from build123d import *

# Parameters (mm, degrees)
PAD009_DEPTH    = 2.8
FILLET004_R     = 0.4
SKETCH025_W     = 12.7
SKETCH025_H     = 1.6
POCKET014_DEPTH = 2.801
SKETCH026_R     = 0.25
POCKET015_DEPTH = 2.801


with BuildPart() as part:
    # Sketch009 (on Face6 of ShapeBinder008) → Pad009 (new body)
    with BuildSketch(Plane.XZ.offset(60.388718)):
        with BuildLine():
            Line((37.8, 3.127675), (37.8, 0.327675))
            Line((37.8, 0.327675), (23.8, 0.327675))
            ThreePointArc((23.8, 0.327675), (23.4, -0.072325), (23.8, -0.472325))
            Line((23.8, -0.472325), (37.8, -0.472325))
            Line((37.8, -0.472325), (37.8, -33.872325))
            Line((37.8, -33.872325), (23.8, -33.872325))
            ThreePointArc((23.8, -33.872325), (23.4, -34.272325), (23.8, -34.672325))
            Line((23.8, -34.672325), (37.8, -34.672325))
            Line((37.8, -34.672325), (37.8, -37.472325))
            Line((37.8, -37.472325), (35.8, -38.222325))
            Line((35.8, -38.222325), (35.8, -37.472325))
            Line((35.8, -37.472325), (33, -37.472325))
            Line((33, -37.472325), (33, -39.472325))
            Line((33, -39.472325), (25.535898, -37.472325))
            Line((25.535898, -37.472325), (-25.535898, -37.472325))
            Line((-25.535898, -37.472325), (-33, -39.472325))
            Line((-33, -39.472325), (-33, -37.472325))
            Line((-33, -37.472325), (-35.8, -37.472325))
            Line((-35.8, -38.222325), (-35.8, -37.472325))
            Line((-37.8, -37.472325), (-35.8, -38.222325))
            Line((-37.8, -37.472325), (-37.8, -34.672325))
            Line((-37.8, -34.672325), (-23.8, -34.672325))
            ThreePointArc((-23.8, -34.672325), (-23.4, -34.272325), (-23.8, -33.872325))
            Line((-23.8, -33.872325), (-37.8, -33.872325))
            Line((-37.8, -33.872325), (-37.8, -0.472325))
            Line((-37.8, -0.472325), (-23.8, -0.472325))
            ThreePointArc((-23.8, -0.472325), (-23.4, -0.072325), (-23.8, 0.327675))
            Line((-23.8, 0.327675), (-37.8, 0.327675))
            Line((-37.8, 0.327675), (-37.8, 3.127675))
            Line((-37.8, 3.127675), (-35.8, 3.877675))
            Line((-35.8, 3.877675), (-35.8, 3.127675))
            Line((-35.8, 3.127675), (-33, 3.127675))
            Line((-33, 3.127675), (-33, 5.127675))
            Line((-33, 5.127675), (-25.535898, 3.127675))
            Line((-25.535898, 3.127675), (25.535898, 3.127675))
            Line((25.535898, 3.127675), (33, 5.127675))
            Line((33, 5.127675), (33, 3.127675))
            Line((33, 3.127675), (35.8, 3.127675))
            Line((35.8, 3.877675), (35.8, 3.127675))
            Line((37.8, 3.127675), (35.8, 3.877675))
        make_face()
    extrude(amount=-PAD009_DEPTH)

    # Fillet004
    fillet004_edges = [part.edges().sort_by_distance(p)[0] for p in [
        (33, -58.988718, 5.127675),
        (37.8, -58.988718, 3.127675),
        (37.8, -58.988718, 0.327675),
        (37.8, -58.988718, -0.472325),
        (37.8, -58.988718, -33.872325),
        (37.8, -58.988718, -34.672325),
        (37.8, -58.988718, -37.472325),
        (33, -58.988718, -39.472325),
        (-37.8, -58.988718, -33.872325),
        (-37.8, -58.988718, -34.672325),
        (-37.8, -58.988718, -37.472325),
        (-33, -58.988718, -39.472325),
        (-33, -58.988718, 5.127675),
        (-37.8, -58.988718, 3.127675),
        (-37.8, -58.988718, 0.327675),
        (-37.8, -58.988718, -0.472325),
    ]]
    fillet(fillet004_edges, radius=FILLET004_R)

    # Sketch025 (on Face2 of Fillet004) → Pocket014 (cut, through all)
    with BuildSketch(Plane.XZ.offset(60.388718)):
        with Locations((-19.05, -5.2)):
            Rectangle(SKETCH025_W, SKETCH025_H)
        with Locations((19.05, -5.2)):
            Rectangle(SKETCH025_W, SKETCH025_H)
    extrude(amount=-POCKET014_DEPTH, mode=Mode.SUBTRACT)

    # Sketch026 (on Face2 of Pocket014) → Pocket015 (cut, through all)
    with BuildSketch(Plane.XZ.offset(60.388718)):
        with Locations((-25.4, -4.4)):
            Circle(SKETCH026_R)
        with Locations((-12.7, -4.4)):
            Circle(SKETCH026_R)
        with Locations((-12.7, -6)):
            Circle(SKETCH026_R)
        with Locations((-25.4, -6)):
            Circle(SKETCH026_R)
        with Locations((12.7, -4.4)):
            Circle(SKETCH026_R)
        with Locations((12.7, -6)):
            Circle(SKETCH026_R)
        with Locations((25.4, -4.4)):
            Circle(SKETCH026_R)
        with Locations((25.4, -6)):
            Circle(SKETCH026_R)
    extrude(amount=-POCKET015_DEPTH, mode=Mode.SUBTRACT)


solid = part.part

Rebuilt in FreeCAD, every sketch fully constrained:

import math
import FreeCAD as App
import Part
import Sketcher

V = App.Vector
Q = App.Units.Quantity


def edges_at(feature, points):
    """Names of the edges that pass closest to the given points."""
    edges = feature.Shape.Edges
    near = lambda p: min(range(len(edges)), key=lambda i: edges[i].distToShape(Part.Vertex(*p))[0])
    return sorted({f"Edge{near(p) + 1}" for p in points})

doc = App.newDocument("Part")
body = doc.addObject("PartDesign::Body", "Body")

# Sketch on XZ plane
sketch1 = body.newObject("Sketcher::SketchObject", "Sketch")
sketch1.AttachmentSupport = (doc.getObject("XZ_Plane"), [""])
sketch1.MapMode = "FlatFace"
sketch1.AttachmentOffset = App.Placement(V(0, 0, 60.388718), App.Rotation())
sketch1.addGeometry(Part.LineSegment(V(37.8, 0.327675, 0), V(37.8, 3.127675, 0)), False)
sketch1.addGeometry(Part.LineSegment(V(37.8, 3.127675, 0), V(35.8, 3.877675, 0)), False)
sketch1.addGeometry(Part.LineSegment(V(35.8, 3.877675, 0), V(35.8, 3.127675, 0)), False)
sketch1.addGeometry(Part.LineSegment(V(35.8, 3.127675, 0), V(33, 3.127675, 0)), False)
sketch1.addGeometry(Part.LineSegment(V(33, 3.127675, 0), V(33, 5.127675, 0)), False)
sketch1.addGeometry(Part.LineSegment(V(33, 5.127675, 0), V(25.535898, 3.127675, 0)), False)
sketch1.addGeometry(Part.LineSegment(V(25.535898, 3.127675, 0), V(-25.535898, 3.127675, 0)), False)
sketch1.addGeometry(Part.LineSegment(V(-25.535898, 3.127675, 0), V(-33, 5.127675, 0)), False)
sketch1.addGeometry(Part.LineSegment(V(-33, 5.127675, 0), V(-33, 3.127675, 0)), False)
sketch1.addGeometry(Part.LineSegment(V(-33, 3.127675, 0), V(-35.8, 3.127675, 0)), False)
sketch1.addGeometry(Part.LineSegment(V(-35.8, 3.127675, 0), V(-35.8, 3.877675, 0)), False)
sketch1.addGeometry(Part.LineSegment(V(-35.8, 3.877675, 0), V(-37.8, 3.127675, 0)), False)
sketch1.addGeometry(Part.LineSegment(V(-37.8, 3.127675, 0), V(-37.8, 0.327675, 0)), False)
sketch1.addGeometry(Part.LineSegment(V(-37.8, 0.327675, 0), V(-23.8, 0.327675, 0)), False)
sketch1.addGeometry(Part.ArcOfCircle(Part.Circle(V(-23.8, -0.072325, 0), V(0, 0, 1), 0.4), math.radians(-90), math.radians(90)), False)
sketch1.addGeometry(Part.LineSegment(V(-23.8, -0.472325, 0), V(-37.8, -0.472325, 0)), False)
sketch1.addGeometry(Part.LineSegment(V(-37.8, -0.472325, 0), V(-37.8, -33.872325, 0)), False)
sketch1.addGeometry(Part.LineSegment(V(-37.8, -33.872325, 0), V(-23.8, -33.872325, 0)), False)
sketch1.addGeometry(Part.ArcOfCircle(Part.Circle(V(-23.8, -34.272325, 0), V(0, 0, 1), 0.4), math.radians(-90), math.radians(90)), False)
sketch1.addGeometry(Part.LineSegment(V(-23.8, -34.672325, 0), V(-37.8, -34.672325, 0)), False)
sketch1.addGeometry(Part.LineSegment(V(-37.8, -34.672325, 0), V(-37.8, -37.472325, 0)), False)
sketch1.addGeometry(Part.LineSegment(V(-37.8, -37.472325, 0), V(-35.8, -38.222325, 0)), False)
sketch1.addGeometry(Part.LineSegment(V(-35.8, -38.222325, 0), V(-35.8, -37.472325, 0)), False)
sketch1.addGeometry(Part.LineSegment(V(-35.8, -37.472325, 0), V(-33, -37.472325, 0)), False)
sketch1.addGeometry(Part.LineSegment(V(-33, -37.472325, 0), V(-33, -39.472325, 0)), False)
sketch1.addGeometry(Part.LineSegment(V(-33, -39.472325, 0), V(-25.535898, -37.472325, 0)), False)
sketch1.addGeometry(Part.LineSegment(V(-25.535898, -37.472325, 0), V(25.535898, -37.472325, 0)), False)
sketch1.addGeometry(Part.LineSegment(V(25.535898, -37.472325, 0), V(33, -39.472325, 0)), False)
sketch1.addGeometry(Part.LineSegment(V(33, -39.472325, 0), V(33, -37.472325, 0)), False)
sketch1.addGeometry(Part.LineSegment(V(33, -37.472325, 0), V(35.8, -37.472325, 0)), False)
sketch1.addGeometry(Part.LineSegment(V(35.8, -37.472325, 0), V(35.8, -38.222325, 0)), False)
sketch1.addGeometry(Part.LineSegment(V(35.8, -38.222325, 0), V(37.8, -37.472325, 0)), False)
sketch1.addGeometry(Part.LineSegment(V(37.8, -37.472325, 0), V(37.8, -34.672325, 0)), False)
sketch1.addGeometry(Part.LineSegment(V(37.8, -34.672325, 0), V(23.8, -34.672325, 0)), False)
sketch1.addGeometry(Part.ArcOfCircle(Part.Circle(V(23.8, -34.272325, 0), V(0, 0, 1), 0.4), math.radians(90), math.radians(270)), False)
sketch1.addGeometry(Part.LineSegment(V(23.8, -33.872325, 0), V(37.8, -33.872325, 0)), False)
sketch1.addGeometry(Part.LineSegment(V(37.8, -33.872325, 0), V(37.8, -0.472325, 0)), False)
sketch1.addGeometry(Part.LineSegment(V(37.8, -0.472325, 0), V(23.8, -0.472325, 0)), False)
sketch1.addGeometry(Part.ArcOfCircle(Part.Circle(V(23.8, -0.072325, 0), V(0, 0, 1), 0.4), math.radians(90), math.radians(270)), False)
sketch1.addGeometry(Part.LineSegment(V(23.8, 0.327675, 0), V(37.8, 0.327675, 0)), False)
sketch1.addConstraint(Sketcher.Constraint("Coincident", 0, 2, 1, 1))
sketch1.addConstraint(Sketcher.Constraint("Coincident", 1, 2, 2, 1))
sketch1.addConstraint(Sketcher.Constraint("Coincident", 2, 2, 3, 1))
sketch1.addConstraint(Sketcher.Constraint("Coincident", 3, 2, 4, 1))
sketch1.addConstraint(Sketcher.Constraint("Coincident", 4, 2, 5, 1))
sketch1.addConstraint(Sketcher.Constraint("Coincident", 5, 2, 6, 1))
sketch1.addConstraint(Sketcher.Constraint("Coincident", 6, 2, 7, 1))
sketch1.addConstraint(Sketcher.Constraint("Coincident", 7, 2, 8, 1))
sketch1.addConstraint(Sketcher.Constraint("Coincident", 8, 2, 9, 1))
sketch1.addConstraint(Sketcher.Constraint("Coincident", 9, 2, 10, 1))
sketch1.addConstraint(Sketcher.Constraint("Coincident", 10, 2, 11, 1))
sketch1.addConstraint(Sketcher.Constraint("Coincident", 11, 2, 12, 1))
sketch1.addConstraint(Sketcher.Constraint("Coincident", 12, 2, 13, 1))
sketch1.addConstraint(Sketcher.Constraint("Tangent", 13, 2, 14, 2))
sketch1.addConstraint(Sketcher.Constraint("Tangent", 14, 1, 15, 1))
sketch1.addConstraint(Sketcher.Constraint("Coincident", 15, 2, 16, 1))
sketch1.addConstraint(Sketcher.Constraint("Coincident", 16, 2, 17, 1))
sketch1.addConstraint(Sketcher.Constraint("Tangent", 17, 2, 18, 2))
sketch1.addConstraint(Sketcher.Constraint("Tangent", 18, 1, 19, 1))
sketch1.addConstraint(Sketcher.Constraint("Coincident", 19, 2, 20, 1))
sketch1.addConstraint(Sketcher.Constraint("Coincident", 20, 2, 21, 1))
sketch1.addConstraint(Sketcher.Constraint("Coincident", 21, 2, 22, 1))
sketch1.addConstraint(Sketcher.Constraint("Coincident", 22, 2, 23, 1))
sketch1.addConstraint(Sketcher.Constraint("Coincident", 23, 2, 24, 1))
sketch1.addConstraint(Sketcher.Constraint("Coincident", 24, 2, 25, 1))
sketch1.addConstraint(Sketcher.Constraint("Coincident", 25, 2, 26, 1))
sketch1.addConstraint(Sketcher.Constraint("Coincident", 26, 2, 27, 1))
sketch1.addConstraint(Sketcher.Constraint("Coincident", 27, 2, 28, 1))
sketch1.addConstraint(Sketcher.Constraint("Coincident", 28, 2, 29, 1))
sketch1.addConstraint(Sketcher.Constraint("Coincident", 29, 2, 30, 1))
sketch1.addConstraint(Sketcher.Constraint("Coincident", 30, 2, 31, 1))
sketch1.addConstraint(Sketcher.Constraint("Coincident", 31, 2, 32, 1))
sketch1.addConstraint(Sketcher.Constraint("Coincident", 32, 2, 33, 1))
sketch1.addConstraint(Sketcher.Constraint("Tangent", 33, 2, 34, 2))
sketch1.addConstraint(Sketcher.Constraint("Tangent", 34, 1, 35, 1))
sketch1.addConstraint(Sketcher.Constraint("Coincident", 35, 2, 36, 1))
sketch1.addConstraint(Sketcher.Constraint("Coincident", 36, 2, 37, 1))
sketch1.addConstraint(Sketcher.Constraint("Tangent", 37, 2, 38, 2))
sketch1.addConstraint(Sketcher.Constraint("Tangent", 38, 1, 39, 1))
sketch1.addConstraint(Sketcher.Constraint("Coincident", 39, 2, 0, 1))
sketch1.addConstraint(Sketcher.Constraint("Vertical", 0))
sketch1.addConstraint(Sketcher.Constraint("Vertical", 2))
sketch1.addConstraint(Sketcher.Constraint("Horizontal", 3))
sketch1.addConstraint(Sketcher.Constraint("Vertical", 4))
sketch1.addConstraint(Sketcher.Constraint("Horizontal", 6))
sketch1.addConstraint(Sketcher.Constraint("Vertical", 8))
sketch1.addConstraint(Sketcher.Constraint("Horizontal", 9))
sketch1.addConstraint(Sketcher.Constraint("Vertical", 10))
sketch1.addConstraint(Sketcher.Constraint("Vertical", 12))
sketch1.addConstraint(Sketcher.Constraint("Horizontal", 13))
sketch1.addConstraint(Sketcher.Constraint("Horizontal", 15))
sketch1.addConstraint(Sketcher.Constraint("Vertical", 16))
sketch1.addConstraint(Sketcher.Constraint("Horizontal", 17))
sketch1.addConstraint(Sketcher.Constraint("Horizontal", 19))
sketch1.addConstraint(Sketcher.Constraint("Vertical", 20))
sketch1.addConstraint(Sketcher.Constraint("Vertical", 22))
sketch1.addConstraint(Sketcher.Constraint("Horizontal", 23))
sketch1.addConstraint(Sketcher.Constraint("Vertical", 24))
sketch1.addConstraint(Sketcher.Constraint("Horizontal", 26))
sketch1.addConstraint(Sketcher.Constraint("Vertical", 28))
sketch1.addConstraint(Sketcher.Constraint("Horizontal", 29))
sketch1.addConstraint(Sketcher.Constraint("Vertical", 30))
sketch1.addConstraint(Sketcher.Constraint("Vertical", 32))
sketch1.addConstraint(Sketcher.Constraint("Horizontal", 33))
sketch1.addConstraint(Sketcher.Constraint("Horizontal", 35))
sketch1.addConstraint(Sketcher.Constraint("Vertical", 36))
sketch1.addConstraint(Sketcher.Constraint("Horizontal", 37))
sketch1.addConstraint(Sketcher.Constraint("Horizontal", 39))
sketch1.addConstraint(Sketcher.Constraint("Equal", 14, 18))
sketch1.addConstraint(Sketcher.Constraint("Equal", 18, 34))
sketch1.addConstraint(Sketcher.Constraint("Equal", 34, 38))
sketch1.addConstraint(Sketcher.Constraint("Symmetric", 18, 3, 34, 3, -2))
sketch1.addConstraint(Sketcher.Constraint("Symmetric", 14, 3, 38, 3, -2))
sketch1.addConstraint(Sketcher.Constraint("Symmetric", 4, 2, 7, 2, -2))
sketch1.addConstraint(Sketcher.Constraint("Symmetric", 2, 2, 9, 2, -2))
sketch1.addConstraint(Sketcher.Constraint("Symmetric", 0, 2, 11, 2, -2))
sketch1.addConstraint(Sketcher.Constraint("Symmetric", 24, 2, 27, 2, -2))
sketch1.addConstraint(Sketcher.Constraint("Symmetric", 22, 2, 29, 2, -2))
sketch1.addConstraint(Sketcher.Constraint("Symmetric", 20, 2, 31, 2, -2))
sketch1.addConstraint(Sketcher.Constraint("Parallel", 1, 21))
sketch1.addConstraint(Sketcher.Constraint("Parallel", 5, 25))
sketch1.addConstraint(Sketcher.Constraint("Parallel", 7, 27))
sketch1.addConstraint(Sketcher.Constraint("Parallel", 11, 31))
sketch1.addConstraint(Sketcher.Constraint("Horizontal", 0, 2, 2, 2))
sketch1.addConstraint(Sketcher.Constraint("Horizontal", 3, 2, 5, 2))
sketch1.addConstraint(Sketcher.Constraint("Horizontal", 1, 2, 10, 2))
sketch1.addConstraint(Sketcher.Constraint("Horizontal", 20, 2, 22, 2))
sketch1.addConstraint(Sketcher.Constraint("Horizontal", 23, 2, 25, 2))
sketch1.addConstraint(Sketcher.Constraint("Vertical", 14, 3, 18, 3))
sketch1.addConstraint(Sketcher.Constraint("Vertical", 12, 2, 15, 2))
sketch1.addConstraint(Sketcher.Constraint("Vertical", 16, 2, 19, 2))
sketch1.addConstraint(Sketcher.Constraint("Vertical", 10, 2, 21, 2))
sketch1.addConstraint(Sketcher.Constraint("Vertical", 8, 2, 23, 2))
sketch1.addConstraint(Sketcher.Constraint("Vertical", 6, 2, 25, 2))
sketch1.addConstraint(Sketcher.Constraint("Vertical", 5, 2, 26, 2))
sketch1.addConstraint(Sketcher.Constraint("Vertical", 32, 2, 35, 2))
sketch1.addConstraint(Sketcher.Constraint("Equal", 29, 0))
sketch1.addConstraint(Sketcher.Constraint("Equal", 12, 20))
sketch1.addConstraint(Sketcher.Constraint("Radius", 14, Q("0.4 mm")))
sketch1.addConstraint(Sketcher.Constraint("DistanceX", 13, 1, 13, 2, Q("14 mm")))
sketch1.addConstraint(Sketcher.Constraint("DistanceY", 4, 1, 4, 2, Q("2 mm")))
sketch1.addConstraint(Sketcher.Constraint("Angle", 5, Q("-165.000001 deg")))
sketch1.addConstraint(Sketcher.Constraint("DistanceX", 3, 2, 3, 1, Q("2.8 mm")))
sketch1.addConstraint(Sketcher.Constraint("DistanceY", 16, 2, 16, 1, Q("33.4 mm")))
sketch1.addConstraint(Sketcher.Constraint("DistanceX", -1, 1, 3, 2, Q("33 mm")))
sketch1.addConstraint(Sketcher.Constraint("DistanceX", 1, 2, 0, 2, Q("2 mm")))
sketch1.addConstraint(Sketcher.Constraint("DistanceY", 2, 2, 2, 1, Q("0.75 mm")))
sketch1.addConstraint(Sketcher.Constraint("DistanceY", 14, 3, -1, 1, Q("0.072325 mm")))
pad1 = body.newObject("PartDesign::Pad", "Pad")
pad1.Profile = sketch1
pad1.Length = 2.8
pad1.Reversed = True
doc.recompute()

fillet = body.newObject("PartDesign::Fillet", "Fillet")
fillet.Base = (pad1, edges_at(pad1, [
    (33, -58.989, 5.128),
    (37.8, -58.989, 3.128),
    (37.8, -58.989, 0.328),
    (37.8, -58.989, -0.472),
    (37.8, -58.989, -33.872),
    (37.8, -58.989, -34.672),
    (37.8, -58.989, -37.472),
    (33, -58.989, -39.472),
    (-37.8, -58.989, -33.872),
    (-37.8, -58.989, -34.672),
    (-37.8, -58.989, -37.472),
    (-33, -58.989, -39.472),
    (-33, -58.989, 5.128),
    (-37.8, -58.989, 3.128),
    (-37.8, -58.989, 0.328),
    (-37.8, -58.989, -0.472),
]))
fillet.Radius = 0.4

# Sketch on XZ plane
sketch2 = body.newObject("Sketcher::SketchObject", "Sketch001")
sketch2.AttachmentSupport = (doc.getObject("XZ_Plane"), [""])
sketch2.MapMode = "FlatFace"
sketch2.AttachmentOffset = App.Placement(V(0, 0, 60.388718), App.Rotation())
sketch2.addGeometry(Part.LineSegment(V(-25.4, -4.4, 0), V(-25.4, -6, 0)), False)
sketch2.addGeometry(Part.LineSegment(V(-25.4, -6, 0), V(-12.7, -6, 0)), False)
sketch2.addGeometry(Part.LineSegment(V(-12.7, -6, 0), V(-12.7, -4.4, 0)), False)
sketch2.addGeometry(Part.LineSegment(V(-12.7, -4.4, 0), V(-25.4, -4.4, 0)), False)
sketch2.addGeometry(Part.LineSegment(V(12.7, -4.4, 0), V(12.7, -6, 0)), False)
sketch2.addGeometry(Part.LineSegment(V(12.7, -6, 0), V(25.4, -6, 0)), False)
sketch2.addGeometry(Part.LineSegment(V(25.4, -6, 0), V(25.4, -4.4, 0)), False)
sketch2.addGeometry(Part.LineSegment(V(25.4, -4.4, 0), V(12.7, -4.4, 0)), False)
sketch2.addConstraint(Sketcher.Constraint("Coincident", 0, 2, 1, 1))
sketch2.addConstraint(Sketcher.Constraint("Coincident", 1, 2, 2, 1))
sketch2.addConstraint(Sketcher.Constraint("Coincident", 2, 2, 3, 1))
sketch2.addConstraint(Sketcher.Constraint("Coincident", 3, 2, 0, 1))
sketch2.addConstraint(Sketcher.Constraint("Coincident", 4, 2, 5, 1))
sketch2.addConstraint(Sketcher.Constraint("Coincident", 5, 2, 6, 1))
sketch2.addConstraint(Sketcher.Constraint("Coincident", 6, 2, 7, 1))
sketch2.addConstraint(Sketcher.Constraint("Coincident", 7, 2, 4, 1))
sketch2.addConstraint(Sketcher.Constraint("Vertical", 0))
sketch2.addConstraint(Sketcher.Constraint("Horizontal", 1))
sketch2.addConstraint(Sketcher.Constraint("Vertical", 2))
sketch2.addConstraint(Sketcher.Constraint("Horizontal", 3))
sketch2.addConstraint(Sketcher.Constraint("Vertical", 4))
sketch2.addConstraint(Sketcher.Constraint("Horizontal", 5))
sketch2.addConstraint(Sketcher.Constraint("Vertical", 6))
sketch2.addConstraint(Sketcher.Constraint("Horizontal", 7))
sketch2.addConstraint(Sketcher.Constraint("Symmetric", 1, 2, 4, 2, -2))
sketch2.addConstraint(Sketcher.Constraint("Symmetric", 3, 2, 6, 2, -2))
sketch2.addConstraint(Sketcher.Constraint("DistanceX", 1, 1, 1, 2, Q("12.7 mm")))
sketch2.addConstraint(Sketcher.Constraint("DistanceY", 0, 2, 0, 1, Q("1.6 mm")))
sketch2.addConstraint(Sketcher.Constraint("DistanceY", 0, 2, -1, 1, Q("6 mm")))
sketch2.addConstraint(Sketcher.Constraint("DistanceX", 0, 2, -1, 1, Q("25.4 mm")))
pocket1 = body.newObject("PartDesign::Pocket", "Pocket")
pocket1.Profile = sketch2
pocket1.Type = "ThroughAll"

# Sketch on XZ plane
sketch3 = body.newObject("Sketcher::SketchObject", "Sketch002")
sketch3.AttachmentSupport = (doc.getObject("XZ_Plane"), [""])
sketch3.MapMode = "FlatFace"
sketch3.AttachmentOffset = App.Placement(V(0, 0, 60.388718), App.Rotation())
sketch3.addGeometry(Part.Circle(V(-25.4, -4.4, 0), V(0, 0, 1), 0.25), False)
sketch3.addGeometry(Part.Circle(V(-12.7, -4.4, 0), V(0, 0, 1), 0.25), False)
sketch3.addGeometry(Part.Circle(V(-12.7, -6, 0), V(0, 0, 1), 0.25), False)
sketch3.addGeometry(Part.Circle(V(-25.4, -6, 0), V(0, 0, 1), 0.25), False)
sketch3.addGeometry(Part.Circle(V(12.7, -4.4, 0), V(0, 0, 1), 0.25), False)
sketch3.addGeometry(Part.Circle(V(12.7, -6, 0), V(0, 0, 1), 0.25), False)
sketch3.addGeometry(Part.Circle(V(25.4, -4.4, 0), V(0, 0, 1), 0.25), False)
sketch3.addGeometry(Part.Circle(V(25.4, -6, 0), V(0, 0, 1), 0.25), False)
sketch3.addConstraint(Sketcher.Constraint("Equal", 0, 1))
sketch3.addConstraint(Sketcher.Constraint("Equal", 1, 2))
sketch3.addConstraint(Sketcher.Constraint("Equal", 2, 3))
sketch3.addConstraint(Sketcher.Constraint("Equal", 3, 4))
sketch3.addConstraint(Sketcher.Constraint("Equal", 4, 5))
sketch3.addConstraint(Sketcher.Constraint("Equal", 5, 6))
sketch3.addConstraint(Sketcher.Constraint("Equal", 6, 7))
sketch3.addConstraint(Sketcher.Constraint("Symmetric", 1, 3, 4, 3, -2))
sketch3.addConstraint(Sketcher.Constraint("Symmetric", 2, 3, 5, 3, -2))
sketch3.addConstraint(Sketcher.Constraint("Symmetric", 0, 3, 6, 3, -2))
sketch3.addConstraint(Sketcher.Constraint("Symmetric", 3, 3, 7, 3, -2))
sketch3.addConstraint(Sketcher.Constraint("Horizontal", 0, 3, 1, 3))
sketch3.addConstraint(Sketcher.Constraint("Horizontal", 2, 3, 3, 3))
sketch3.addConstraint(Sketcher.Constraint("Vertical", 1, 3, 2, 3))
sketch3.addConstraint(Sketcher.Constraint("Vertical", 0, 3, 3, 3))
sketch3.addConstraint(Sketcher.Constraint("Diameter", 0, Q("0.5 mm")))
sketch3.addConstraint(Sketcher.Constraint("DistanceY", 2, 3, -1, 1, Q("6 mm")))
sketch3.addConstraint(Sketcher.Constraint("DistanceX", 0, 3, -1, 1, Q("25.4 mm")))
sketch3.addConstraint(Sketcher.Constraint("DistanceY", 0, 3, -1, 1, Q("4.4 mm")))
sketch3.addConstraint(Sketcher.Constraint("DistanceX", 1, 3, -1, 1, Q("12.7 mm")))
pocket2 = body.newObject("PartDesign::Pocket", "Pocket001")
pocket2.Profile = sketch3
pocket2.Type = "ThroughAll"

doc.recompute()
